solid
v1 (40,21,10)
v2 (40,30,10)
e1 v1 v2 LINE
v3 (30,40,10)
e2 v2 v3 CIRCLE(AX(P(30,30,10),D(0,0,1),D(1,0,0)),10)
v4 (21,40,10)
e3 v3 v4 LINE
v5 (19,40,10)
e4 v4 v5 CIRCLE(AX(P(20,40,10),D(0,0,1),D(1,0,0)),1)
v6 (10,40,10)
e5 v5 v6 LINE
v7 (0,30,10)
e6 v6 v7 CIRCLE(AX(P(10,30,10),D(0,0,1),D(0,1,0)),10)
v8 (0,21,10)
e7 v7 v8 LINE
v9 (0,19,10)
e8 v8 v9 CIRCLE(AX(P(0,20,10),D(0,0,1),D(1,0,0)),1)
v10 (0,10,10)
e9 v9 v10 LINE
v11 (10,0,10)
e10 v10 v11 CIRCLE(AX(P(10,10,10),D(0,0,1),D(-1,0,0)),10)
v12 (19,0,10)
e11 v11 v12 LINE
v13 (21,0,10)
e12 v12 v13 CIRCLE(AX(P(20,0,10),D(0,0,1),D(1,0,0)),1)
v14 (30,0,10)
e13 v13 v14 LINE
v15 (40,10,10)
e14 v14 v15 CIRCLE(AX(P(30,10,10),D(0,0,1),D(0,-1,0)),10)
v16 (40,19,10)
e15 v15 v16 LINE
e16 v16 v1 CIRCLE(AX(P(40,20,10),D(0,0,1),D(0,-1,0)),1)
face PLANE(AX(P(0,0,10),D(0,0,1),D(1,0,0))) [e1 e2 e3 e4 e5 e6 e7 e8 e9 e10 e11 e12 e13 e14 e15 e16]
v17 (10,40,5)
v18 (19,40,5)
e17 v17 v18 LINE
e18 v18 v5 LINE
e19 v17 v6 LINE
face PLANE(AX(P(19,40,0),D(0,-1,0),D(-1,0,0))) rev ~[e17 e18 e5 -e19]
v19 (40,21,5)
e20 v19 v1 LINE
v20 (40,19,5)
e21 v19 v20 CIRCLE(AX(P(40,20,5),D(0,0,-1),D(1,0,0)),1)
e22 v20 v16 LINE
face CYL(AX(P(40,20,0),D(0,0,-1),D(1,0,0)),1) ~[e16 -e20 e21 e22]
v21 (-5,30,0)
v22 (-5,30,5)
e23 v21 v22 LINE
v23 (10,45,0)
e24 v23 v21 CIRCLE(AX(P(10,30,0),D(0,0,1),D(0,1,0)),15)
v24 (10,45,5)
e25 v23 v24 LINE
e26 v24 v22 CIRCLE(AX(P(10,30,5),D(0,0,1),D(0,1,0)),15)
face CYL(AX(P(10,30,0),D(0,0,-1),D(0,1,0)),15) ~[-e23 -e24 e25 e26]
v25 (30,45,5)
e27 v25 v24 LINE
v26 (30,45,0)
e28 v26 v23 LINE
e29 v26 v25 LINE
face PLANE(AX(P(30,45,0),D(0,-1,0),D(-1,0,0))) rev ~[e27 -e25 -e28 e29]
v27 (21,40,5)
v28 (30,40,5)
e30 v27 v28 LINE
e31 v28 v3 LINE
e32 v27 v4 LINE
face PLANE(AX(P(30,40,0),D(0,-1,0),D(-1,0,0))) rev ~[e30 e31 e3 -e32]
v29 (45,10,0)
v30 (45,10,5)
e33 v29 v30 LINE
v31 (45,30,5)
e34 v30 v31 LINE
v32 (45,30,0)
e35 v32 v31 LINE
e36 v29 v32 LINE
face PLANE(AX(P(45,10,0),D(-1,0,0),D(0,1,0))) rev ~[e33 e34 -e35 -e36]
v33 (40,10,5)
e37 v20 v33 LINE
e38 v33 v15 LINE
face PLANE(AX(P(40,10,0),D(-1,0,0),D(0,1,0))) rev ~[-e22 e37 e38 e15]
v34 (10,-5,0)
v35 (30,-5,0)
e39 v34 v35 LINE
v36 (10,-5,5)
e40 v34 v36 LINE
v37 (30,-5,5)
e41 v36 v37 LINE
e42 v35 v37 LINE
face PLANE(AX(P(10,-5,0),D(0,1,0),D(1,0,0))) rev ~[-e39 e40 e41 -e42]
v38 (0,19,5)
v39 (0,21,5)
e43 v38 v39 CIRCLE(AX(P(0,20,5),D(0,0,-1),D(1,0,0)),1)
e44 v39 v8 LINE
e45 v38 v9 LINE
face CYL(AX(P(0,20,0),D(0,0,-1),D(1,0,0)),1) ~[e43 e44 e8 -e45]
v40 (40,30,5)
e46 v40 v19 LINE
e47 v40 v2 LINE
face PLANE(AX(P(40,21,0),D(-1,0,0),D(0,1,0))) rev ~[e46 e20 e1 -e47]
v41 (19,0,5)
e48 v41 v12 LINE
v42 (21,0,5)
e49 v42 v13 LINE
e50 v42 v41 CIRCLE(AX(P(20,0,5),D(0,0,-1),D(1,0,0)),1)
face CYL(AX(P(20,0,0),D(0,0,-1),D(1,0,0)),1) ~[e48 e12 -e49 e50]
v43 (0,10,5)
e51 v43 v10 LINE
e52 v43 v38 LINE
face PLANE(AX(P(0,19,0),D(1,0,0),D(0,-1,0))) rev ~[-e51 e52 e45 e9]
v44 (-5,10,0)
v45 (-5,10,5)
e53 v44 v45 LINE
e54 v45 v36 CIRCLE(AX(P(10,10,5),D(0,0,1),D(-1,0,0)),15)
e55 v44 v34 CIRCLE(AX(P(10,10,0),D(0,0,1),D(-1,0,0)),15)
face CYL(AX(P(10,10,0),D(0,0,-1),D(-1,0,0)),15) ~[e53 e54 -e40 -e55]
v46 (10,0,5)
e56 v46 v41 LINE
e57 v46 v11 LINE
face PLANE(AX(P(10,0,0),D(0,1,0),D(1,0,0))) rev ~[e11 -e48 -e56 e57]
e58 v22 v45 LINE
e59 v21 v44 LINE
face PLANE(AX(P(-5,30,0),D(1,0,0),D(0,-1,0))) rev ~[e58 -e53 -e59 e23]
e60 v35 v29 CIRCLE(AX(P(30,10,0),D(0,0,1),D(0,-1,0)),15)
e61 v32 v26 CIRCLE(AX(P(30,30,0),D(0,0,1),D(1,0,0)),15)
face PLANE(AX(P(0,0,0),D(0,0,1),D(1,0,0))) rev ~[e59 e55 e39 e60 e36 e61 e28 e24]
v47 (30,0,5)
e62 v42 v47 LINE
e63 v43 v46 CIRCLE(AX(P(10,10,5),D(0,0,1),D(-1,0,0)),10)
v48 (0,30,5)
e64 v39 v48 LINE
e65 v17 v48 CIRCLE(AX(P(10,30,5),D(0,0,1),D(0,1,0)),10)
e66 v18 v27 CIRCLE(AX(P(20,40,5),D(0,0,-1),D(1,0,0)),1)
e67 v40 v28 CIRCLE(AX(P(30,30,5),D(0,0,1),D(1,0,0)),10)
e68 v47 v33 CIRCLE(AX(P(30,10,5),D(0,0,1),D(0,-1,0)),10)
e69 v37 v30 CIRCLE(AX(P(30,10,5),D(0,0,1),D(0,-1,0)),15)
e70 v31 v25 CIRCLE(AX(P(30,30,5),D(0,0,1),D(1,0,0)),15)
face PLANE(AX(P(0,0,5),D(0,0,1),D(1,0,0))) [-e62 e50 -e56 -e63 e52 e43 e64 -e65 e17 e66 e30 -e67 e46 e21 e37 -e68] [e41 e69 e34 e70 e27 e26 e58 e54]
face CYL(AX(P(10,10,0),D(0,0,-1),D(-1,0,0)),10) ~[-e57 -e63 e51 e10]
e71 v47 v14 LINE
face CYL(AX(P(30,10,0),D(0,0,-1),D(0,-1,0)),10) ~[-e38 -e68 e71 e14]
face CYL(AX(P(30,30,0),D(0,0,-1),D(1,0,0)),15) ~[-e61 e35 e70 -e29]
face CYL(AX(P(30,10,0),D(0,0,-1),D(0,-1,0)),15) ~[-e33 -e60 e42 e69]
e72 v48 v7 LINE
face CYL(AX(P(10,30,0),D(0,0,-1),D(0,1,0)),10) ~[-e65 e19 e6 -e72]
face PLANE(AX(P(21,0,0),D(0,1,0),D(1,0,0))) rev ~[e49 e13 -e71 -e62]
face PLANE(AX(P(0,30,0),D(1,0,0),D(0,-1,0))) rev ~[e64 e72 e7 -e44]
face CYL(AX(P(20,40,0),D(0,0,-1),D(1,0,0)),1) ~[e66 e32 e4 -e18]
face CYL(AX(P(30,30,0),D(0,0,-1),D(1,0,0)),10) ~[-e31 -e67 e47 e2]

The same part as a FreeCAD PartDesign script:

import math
import FreeCAD as App
import Part
import Sketcher

V = App.Vector

doc = App.newDocument("Part")
body = doc.addObject("PartDesign::Body", "Body")

# Sketch on XY plane
sketch1 = body.newObject("Sketcher::SketchObject", "Sketch")
sketch1.AttachmentSupport = (doc.getObject("XY_Plane"), [""])
sketch1.MapMode = "FlatFace"
sketch1.addGeometry(Part.LineSegment(V(10, 0, 0), V(19, 0, 0)), False)
sketch1.addGeometry(Part.ArcOfCircle(Part.Circle(V(20, 0, 0), V(0, 0, 1), 1), math.radians(180), math.radians(360)), False)
sketch1.addGeometry(Part.LineSegment(V(21, 0, 0), V(30, 0, 0)), False)
sketch1.addGeometry(Part.ArcOfCircle(Part.Circle(V(30, 10, 0), V(0, 0, 1), 10), math.radians(-90), math.radians(0)), False)
sketch1.addGeometry(Part.LineSegment(V(40, 10, 0), V(40, 19, 0)), False)
sketch1.addGeometry(Part.ArcOfCircle(Part.Circle(V(40, 20, 0), V(0, 0, 1), 1), math.radians(-90), math.radians(90)), False)
sketch1.addGeometry(Part.LineSegment(V(40, 21, 0), V(40, 30, 0)), False)
sketch1.addGeometry(Part.ArcOfCircle(Part.Circle(V(30, 30, 0), V(0, 0, 1), 10), math.radians(0), math.radians(90)), False)
sketch1.addGeometry(Part.LineSegment(V(30, 40, 0), V(21, 40, 0)), False)
sketch1.addGeometry(Part.ArcOfCircle(Part.Circle(V(20, 40, 0), V(0, 0, 1), 1), math.radians(0), math.radians(180)), False)
sketch1.addGeometry(Part.LineSegment(V(19, 40, 0), V(10, 40, 0)), False)
sketch1.addGeometry(Part.ArcOfCircle(Part.Circle(V(10, 30, 0), V(0, 0, 1), 10), math.radians(90), math.radians(180)), False)
sketch1.addGeometry(Part.LineSegment(V(0, 30, 0), V(0, 21, 0)), False)
sketch1.addGeometry(Part.ArcOfCircle(Part.Circle(V(0, 20, 0), V(0, 0, 1), 1), math.radians(90), math.radians(270)), False)
sketch1.addGeometry(Part.LineSegment(V(0, 19, 0), V(0, 10, 0)), False)
sketch1.addGeometry(Part.ArcOfCircle(Part.Circle(V(10, 10, 0), V(0, 0, 1), 10), math.radians(180), math.radians(270)), False)
sketch1.addConstraint(Sketcher.Constraint("Coincident", 0, 2, 1, 1))
sketch1.addConstraint(Sketcher.Constraint("Coincident", 1, 2, 2, 1))
sketch1.addConstraint(Sketcher.Constraint("Tangent", 2, 2, 3, 1))
sketch1.addConstraint(Sketcher.Constraint("Tangent", 3, 2, 4, 1))
sketch1.addConstraint(Sketcher.Constraint("Coincident", 4, 2, 5, 1))
sketch1.addConstraint(Sketcher.Constraint("Coincident", 5, 2, 6, 1))
sketch1.addConstraint(Sketcher.Constraint("Tangent", 6, 2, 7, 1))
sketch1.addConstraint(Sketcher.Constraint("Tangent", 7, 2, 8, 1))
sketch1.addConstraint(Sketcher.Constraint("Coincident", 8, 2, 9, 1))
sketch1.addConstraint(Sketcher.Constraint("Coincident", 9, 2, 10, 1))
sketch1.addConstraint(Sketcher.Constraint("Tangent", 10, 2, 11, 1))
sketch1.addConstraint(Sketcher.Constraint("Tangent", 11, 2, 12, 1))
sketch1.addConstraint(Sketcher.Constraint("Coincident", 12, 2, 13, 1))
sketch1.addConstraint(Sketcher.Constraint("Coincident", 13, 2, 14, 1))
sketch1.addConstraint(Sketcher.Constraint("Tangent", 14, 2, 15, 1))
sketch1.addConstraint(Sketcher.Constraint("Tangent", 15, 2, 0, 1))
sketch1.addConstraint(Sketcher.Constraint("Horizontal", 0))
sketch1.addConstraint(Sketcher.Constraint("Horizontal", 2))
sketch1.addConstraint(Sketcher.Constraint("Vertical", 4))
sketch1.addConstraint(Sketcher.Constraint("Vertical", 6))
sketch1.addConstraint(Sketcher.Constraint("Horizontal", 8))
sketch1.addConstraint(Sketcher.Constraint("Horizontal", 10))
sketch1.addConstraint(Sketcher.Constraint("Vertical", 12))
sketch1.addConstraint(Sketcher.Constraint("Vertical", 14))
sketch1.addConstraint(Sketcher.Constraint("Equal", 1, 5))
sketch1.addConstraint(Sketcher.Constraint("Equal", 3, 7))
sketch1.addConstraint(Sketcher.Constraint("Equal", 5, 9))
sketch1.addConstraint(Sketcher.Constraint("Equal", 7, 11))
sketch1.addConstraint(Sketcher.Constraint("Equal", 9, 13))
sketch1.addConstraint(Sketcher.Constraint("Equal", 11, 15))
sketch1.addConstraint(Sketcher.Constraint("PointOnObject", 1, 3, -1))
sketch1.addConstraint(Sketcher.Constraint("PointOnObject", 13, 3, -2))
sketch1.addConstraint(Sketcher.Constraint("PointOnObject", 0, 2, -1))
sketch1.addConstraint(Sketcher.Constraint("PointOnObject", 1, 2, -1))
sketch1.addConstraint(Sketcher.Constraint("PointOnObject", 11, 2, -2))
sketch1.addConstraint(Sketcher.Constraint("PointOnObject", 13, 2, -2))
sketch1.addConstraint(Sketcher.Constraint("Horizontal", 7, 3, 11, 3))
sketch1.addConstraint(Sketcher.Constraint("Horizontal", 5, 3, 13, 3))
sketch1.addConstraint(Sketcher.Constraint("Horizontal", 9, 3, 7, 2))
sketch1.addConstraint(Sketcher.Constraint("Vertical", 3, 3, 7, 3))
sketch1.addConstraint(Sketcher.Constraint("Vertical", 1, 3, 9, 3))
sketch1.addConstraint(Sketcher.Constraint("Vertical", 5, 3, 3, 2))
sketch1.addConstraint(Sketcher.Constraint("Equal", 0, 2))
sketch1.addConstraint(Sketcher.Constraint("Equal", 10, 4))
sketch1.addConstraint(Sketcher.Constraint("Equal", 4, 6))
sketch1.addConstraint(Sketcher.Constraint("Radius", 3, 10.0))
sketch1.addConstraint(Sketcher.Constraint("DistanceX", -1, 1, 5, 3, 40.0))
sketch1.addConstraint(Sketcher.Constraint("Radius", 1, 1.0))
pad1 = body.newObject("PartDesign::Pad", "Pad")
pad1.Profile = sketch1
pad1.Length = 10

# Sketch on XY plane
sketch2 = body.newObject("Sketcher::SketchObject", "Sketch001")
sketch2.AttachmentSupport = (doc.getObject("XY_Plane"), [""])
sketch2.MapMode = "FlatFace"
sketch2.addGeometry(Part.ArcOfCircle(Part.Circle(V(10, 10, 0), V(0, 0, 1), 15), math.radians(180), math.radians(270)), False)
sketch2.addGeometry(Part.LineSegment(V(10, -5, 0), V(30, -5, 0)), False)
sketch2.addGeometry(Part.ArcOfCircle(Part.Circle(V(30, 10, 0), V(0, 0, 1), 15), math.radians(-90), math.radians(0)), False)
sketch2.addGeometry(Part.LineSegment(V(45, 10, 0), V(45, 30, 0)), False)
sketch2.addGeometry(Part.ArcOfCircle(Part.Circle(V(30, 30, 0), V(0, 0, 1), 15), math.radians(0), math.radians(90)), False)
sketch2.addGeometry(Part.LineSegment(V(30, 45, 0), V(10, 45, 0)), False)
sketch2.addGeometry(Part.ArcOfCircle(Part.Circle(V(10, 30, 0), V(0, 0, 1), 15), math.radians(90), math.radians(180)), False)
sketch2.addGeometry(Part.LineSegment(V(-5, 30, 0), V(-5, 10, 0)), False)
sketch2.addGeometry(Part.ArcOfCircle(Part.Circle(V(10, 10, 0), V(0, 0, 1), 10), math.radians(180), math.radians(270)), False)
sketch2.addGeometry(Part.LineSegment(V(0, 10, 0), V(0, 30, 0)), False)
sketch2.addGeometry(Part.ArcOfCircle(Part.Circle(V(10, 30, 0), V(0, 0, 1), 10), math.radians(90), math.radians(180)), False)
sketch2.addGeometry(Part.LineSegment(V(10, 40, 0), V(30, 40, 0)), False)
sketch2.addGeometry(Part.ArcOfCircle(Part.Circle(V(30, 30, 0), V(0, 0, 1), 10), math.radians(0), math.radians(90)), False)
sketch2.addGeometry(Part.LineSegment(V(40, 30, 0), V(40, 10, 0)), False)
sketch2.addGeometry(Part.ArcOfCircle(Part.Circle(V(30, 10, 0), V(0, 0, 1), 10), math.radians(-90), math.radians(0)), False)
sketch2.addGeometry(Part.LineSegment(V(30, 0, 0), V(10, 0, 0)), False)
sketch2.addConstraint(Sketcher.Constraint("Tangent", 0, 2, 1, 1))
sketch2.addConstraint(Sketcher.Constraint("Tangent", 1, 2, 2, 1))
sketch2.addConstraint(Sketcher.Constraint("Tangent", 2, 2, 3, 1))
sketch2.addConstraint(Sketcher.Constraint("Tangent", 3, 2, 4, 1))
sketch2.addConstraint(Sketcher.Constraint("Tangent", 4, 2, 5, 1))
sketch2.addConstraint(Sketcher.Constraint("Tangent", 5, 2, 6, 1))
sketch2.addConstraint(Sketcher.Constraint("Tangent", 6, 2, 7, 1))
sketch2.addConstraint(Sketcher.Constraint("Tangent", 7, 2, 0, 1))
sketch2.addConstraint(Sketcher.Constraint("Tangent", 8, 1, 9, 1))
sketch2.addConstraint(Sketcher.Constraint("Tangent", 9, 2, 10, 2))
sketch2.addConstraint(Sketcher.Constraint("Tangent", 10, 1, 11, 1))
sketch2.addConstraint(Sketcher.Constraint("Tangent", 11, 2, 12, 2))
sketch2.addConstraint(Sketcher.Constraint("Tangent", 12, 1, 13, 1))
sketch2.addConstraint(Sketcher.Constraint("Tangent", 13, 2, 14, 2))
sketch2.addConstraint(Sketcher.Constraint("Tangent", 14, 1, 15, 1))
sketch2.addConstraint(Sketcher.Constraint("Tangent", 15, 2, 8, 2))
sketch2.addConstraint(Sketcher.Constraint("Horizontal", 1))
sketch2.addConstraint(Sketcher.Constraint("Vertical", 3))
sketch2.addConstraint(Sketcher.Constraint("Horizontal", 5))
sketch2.addConstraint(Sketcher.Constraint("Vertical", 7))
sketch2.addConstraint(Sketcher.Constraint("Vertical", 9))
sketch2.addConstraint(Sketcher.Constraint("Horizontal", 11))
sketch2.addConstraint(Sketcher.Constraint("Vertical", 13))
sketch2.addConstraint(Sketcher.Constraint("Horizontal", 15))
sketch2.addConstraint(Sketcher.Constraint("Coincident", 8, 3, 0, 3))
sketch2.addConstraint(Sketcher.Constraint("Coincident", 10, 3, 6, 3))
sketch2.addConstraint(Sketcher.Constraint("Coincident", 12, 3, 4, 3))
sketch2.addConstraint(Sketcher.Constraint("Equal", 0, 2))
sketch2.addConstraint(Sketcher.Constraint("Equal", 2, 4))
sketch2.addConstraint(Sketcher.Constraint("Equal", 4, 6))
sketch2.addConstraint(Sketcher.Constraint("Equal", 12, 14))
sketch2.addConstraint(Sketcher.Constraint("PointOnObject", 8, 1, -2))
sketch2.addConstraint(Sketcher.Constraint("PointOnObject", 14, 1, -1))
sketch2.addConstraint(Sketcher.Constraint("Equal", 15, 3))
sketch2.addConstraint(Sketcher.Constraint("Radius", 0, 15.0))
sketch2.addConstraint(Sketcher.Constraint("Radius", 8, 10.0))
sketch2.addConstraint(Sketcher.Constraint("DistanceY", -1, 1, 10, 1, 40.0))
pad2 = body.newObject("PartDesign::Pad", "Pad001")
pad2.Profile = sketch2
pad2.Length = 5

doc.recompute()
